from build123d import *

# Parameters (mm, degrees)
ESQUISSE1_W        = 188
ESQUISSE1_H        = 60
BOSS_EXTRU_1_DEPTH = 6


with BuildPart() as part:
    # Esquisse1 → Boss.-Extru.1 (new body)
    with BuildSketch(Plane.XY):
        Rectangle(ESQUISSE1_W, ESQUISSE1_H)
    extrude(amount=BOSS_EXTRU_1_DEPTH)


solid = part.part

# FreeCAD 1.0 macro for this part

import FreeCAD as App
import Part
import Sketcher
from FreeCAD import Vector
Q = App.Units.Quantity

doc = App.newDocument("Part")
body = doc.addObject("PartDesign::Body", "Body")

# Sketch on XY plane
sketch1 = body.newObject("Sketcher::SketchObject", "Sketch")
sketch1.AttachmentSupport = (doc.getObject("XY_Plane"), [""])
sketch1.MapMode = "FlatFace"
sketch1.addGeometry(Part.LineSegment(Vector(-94, 30, 0), Vector(-94, -30, 0)), False)
sketch1.addGeometry(Part.LineSegment(Vector(-94, -30, 0), Vector(94, -30, 0)), False)
sketch1.addGeometry(Part.LineSegment(Vector(94, -30, 0), Vector(94, 30, 0)), False)
sketch1.addGeometry(Part.LineSegment(Vector(94, 30, 0), Vector(-94, 30, 0)), False)
sketch1.addConstraint(Sketcher.Constraint("Coincident", 0, 2, 1, 1))
sketch1.addConstraint(Sketcher.Constraint("Coincident", 1, 2, 2, 1))
sketch1.addConstraint(Sketcher.Constraint("Coincident", 2, 2, 3, 1))
sketch1.addConstraint(Sketcher.Constraint("Coincident", 3, 2, 0, 1))
sketch1.addConstraint(Sketcher.Constraint("Vertical", 0))
sketch1.addConstraint(Sketcher.Constraint("Horizontal", 1))
sketch1.addConstraint(Sketcher.Constraint("Vertical", 2))
sketch1.addConstraint(Sketcher.Constraint("Horizontal", 3))
sketch1.addConstraint(Sketcher.Constraint("Symmetric", 0, 2, 2, 2, -1, 1))
sketch1.addConstraint(Sketcher.Constraint("DistanceX", 1, 1, 1, 2, Q("188 mm")))
sketch1.addConstraint(Sketcher.Constraint("DistanceY", 0, 2, 0, 1, Q("60 mm")))
pad1 = body.newObject("PartDesign::Pad", "Pad")
pad1.Profile = sketch1
pad1.Length = 6

doc.recompute()
